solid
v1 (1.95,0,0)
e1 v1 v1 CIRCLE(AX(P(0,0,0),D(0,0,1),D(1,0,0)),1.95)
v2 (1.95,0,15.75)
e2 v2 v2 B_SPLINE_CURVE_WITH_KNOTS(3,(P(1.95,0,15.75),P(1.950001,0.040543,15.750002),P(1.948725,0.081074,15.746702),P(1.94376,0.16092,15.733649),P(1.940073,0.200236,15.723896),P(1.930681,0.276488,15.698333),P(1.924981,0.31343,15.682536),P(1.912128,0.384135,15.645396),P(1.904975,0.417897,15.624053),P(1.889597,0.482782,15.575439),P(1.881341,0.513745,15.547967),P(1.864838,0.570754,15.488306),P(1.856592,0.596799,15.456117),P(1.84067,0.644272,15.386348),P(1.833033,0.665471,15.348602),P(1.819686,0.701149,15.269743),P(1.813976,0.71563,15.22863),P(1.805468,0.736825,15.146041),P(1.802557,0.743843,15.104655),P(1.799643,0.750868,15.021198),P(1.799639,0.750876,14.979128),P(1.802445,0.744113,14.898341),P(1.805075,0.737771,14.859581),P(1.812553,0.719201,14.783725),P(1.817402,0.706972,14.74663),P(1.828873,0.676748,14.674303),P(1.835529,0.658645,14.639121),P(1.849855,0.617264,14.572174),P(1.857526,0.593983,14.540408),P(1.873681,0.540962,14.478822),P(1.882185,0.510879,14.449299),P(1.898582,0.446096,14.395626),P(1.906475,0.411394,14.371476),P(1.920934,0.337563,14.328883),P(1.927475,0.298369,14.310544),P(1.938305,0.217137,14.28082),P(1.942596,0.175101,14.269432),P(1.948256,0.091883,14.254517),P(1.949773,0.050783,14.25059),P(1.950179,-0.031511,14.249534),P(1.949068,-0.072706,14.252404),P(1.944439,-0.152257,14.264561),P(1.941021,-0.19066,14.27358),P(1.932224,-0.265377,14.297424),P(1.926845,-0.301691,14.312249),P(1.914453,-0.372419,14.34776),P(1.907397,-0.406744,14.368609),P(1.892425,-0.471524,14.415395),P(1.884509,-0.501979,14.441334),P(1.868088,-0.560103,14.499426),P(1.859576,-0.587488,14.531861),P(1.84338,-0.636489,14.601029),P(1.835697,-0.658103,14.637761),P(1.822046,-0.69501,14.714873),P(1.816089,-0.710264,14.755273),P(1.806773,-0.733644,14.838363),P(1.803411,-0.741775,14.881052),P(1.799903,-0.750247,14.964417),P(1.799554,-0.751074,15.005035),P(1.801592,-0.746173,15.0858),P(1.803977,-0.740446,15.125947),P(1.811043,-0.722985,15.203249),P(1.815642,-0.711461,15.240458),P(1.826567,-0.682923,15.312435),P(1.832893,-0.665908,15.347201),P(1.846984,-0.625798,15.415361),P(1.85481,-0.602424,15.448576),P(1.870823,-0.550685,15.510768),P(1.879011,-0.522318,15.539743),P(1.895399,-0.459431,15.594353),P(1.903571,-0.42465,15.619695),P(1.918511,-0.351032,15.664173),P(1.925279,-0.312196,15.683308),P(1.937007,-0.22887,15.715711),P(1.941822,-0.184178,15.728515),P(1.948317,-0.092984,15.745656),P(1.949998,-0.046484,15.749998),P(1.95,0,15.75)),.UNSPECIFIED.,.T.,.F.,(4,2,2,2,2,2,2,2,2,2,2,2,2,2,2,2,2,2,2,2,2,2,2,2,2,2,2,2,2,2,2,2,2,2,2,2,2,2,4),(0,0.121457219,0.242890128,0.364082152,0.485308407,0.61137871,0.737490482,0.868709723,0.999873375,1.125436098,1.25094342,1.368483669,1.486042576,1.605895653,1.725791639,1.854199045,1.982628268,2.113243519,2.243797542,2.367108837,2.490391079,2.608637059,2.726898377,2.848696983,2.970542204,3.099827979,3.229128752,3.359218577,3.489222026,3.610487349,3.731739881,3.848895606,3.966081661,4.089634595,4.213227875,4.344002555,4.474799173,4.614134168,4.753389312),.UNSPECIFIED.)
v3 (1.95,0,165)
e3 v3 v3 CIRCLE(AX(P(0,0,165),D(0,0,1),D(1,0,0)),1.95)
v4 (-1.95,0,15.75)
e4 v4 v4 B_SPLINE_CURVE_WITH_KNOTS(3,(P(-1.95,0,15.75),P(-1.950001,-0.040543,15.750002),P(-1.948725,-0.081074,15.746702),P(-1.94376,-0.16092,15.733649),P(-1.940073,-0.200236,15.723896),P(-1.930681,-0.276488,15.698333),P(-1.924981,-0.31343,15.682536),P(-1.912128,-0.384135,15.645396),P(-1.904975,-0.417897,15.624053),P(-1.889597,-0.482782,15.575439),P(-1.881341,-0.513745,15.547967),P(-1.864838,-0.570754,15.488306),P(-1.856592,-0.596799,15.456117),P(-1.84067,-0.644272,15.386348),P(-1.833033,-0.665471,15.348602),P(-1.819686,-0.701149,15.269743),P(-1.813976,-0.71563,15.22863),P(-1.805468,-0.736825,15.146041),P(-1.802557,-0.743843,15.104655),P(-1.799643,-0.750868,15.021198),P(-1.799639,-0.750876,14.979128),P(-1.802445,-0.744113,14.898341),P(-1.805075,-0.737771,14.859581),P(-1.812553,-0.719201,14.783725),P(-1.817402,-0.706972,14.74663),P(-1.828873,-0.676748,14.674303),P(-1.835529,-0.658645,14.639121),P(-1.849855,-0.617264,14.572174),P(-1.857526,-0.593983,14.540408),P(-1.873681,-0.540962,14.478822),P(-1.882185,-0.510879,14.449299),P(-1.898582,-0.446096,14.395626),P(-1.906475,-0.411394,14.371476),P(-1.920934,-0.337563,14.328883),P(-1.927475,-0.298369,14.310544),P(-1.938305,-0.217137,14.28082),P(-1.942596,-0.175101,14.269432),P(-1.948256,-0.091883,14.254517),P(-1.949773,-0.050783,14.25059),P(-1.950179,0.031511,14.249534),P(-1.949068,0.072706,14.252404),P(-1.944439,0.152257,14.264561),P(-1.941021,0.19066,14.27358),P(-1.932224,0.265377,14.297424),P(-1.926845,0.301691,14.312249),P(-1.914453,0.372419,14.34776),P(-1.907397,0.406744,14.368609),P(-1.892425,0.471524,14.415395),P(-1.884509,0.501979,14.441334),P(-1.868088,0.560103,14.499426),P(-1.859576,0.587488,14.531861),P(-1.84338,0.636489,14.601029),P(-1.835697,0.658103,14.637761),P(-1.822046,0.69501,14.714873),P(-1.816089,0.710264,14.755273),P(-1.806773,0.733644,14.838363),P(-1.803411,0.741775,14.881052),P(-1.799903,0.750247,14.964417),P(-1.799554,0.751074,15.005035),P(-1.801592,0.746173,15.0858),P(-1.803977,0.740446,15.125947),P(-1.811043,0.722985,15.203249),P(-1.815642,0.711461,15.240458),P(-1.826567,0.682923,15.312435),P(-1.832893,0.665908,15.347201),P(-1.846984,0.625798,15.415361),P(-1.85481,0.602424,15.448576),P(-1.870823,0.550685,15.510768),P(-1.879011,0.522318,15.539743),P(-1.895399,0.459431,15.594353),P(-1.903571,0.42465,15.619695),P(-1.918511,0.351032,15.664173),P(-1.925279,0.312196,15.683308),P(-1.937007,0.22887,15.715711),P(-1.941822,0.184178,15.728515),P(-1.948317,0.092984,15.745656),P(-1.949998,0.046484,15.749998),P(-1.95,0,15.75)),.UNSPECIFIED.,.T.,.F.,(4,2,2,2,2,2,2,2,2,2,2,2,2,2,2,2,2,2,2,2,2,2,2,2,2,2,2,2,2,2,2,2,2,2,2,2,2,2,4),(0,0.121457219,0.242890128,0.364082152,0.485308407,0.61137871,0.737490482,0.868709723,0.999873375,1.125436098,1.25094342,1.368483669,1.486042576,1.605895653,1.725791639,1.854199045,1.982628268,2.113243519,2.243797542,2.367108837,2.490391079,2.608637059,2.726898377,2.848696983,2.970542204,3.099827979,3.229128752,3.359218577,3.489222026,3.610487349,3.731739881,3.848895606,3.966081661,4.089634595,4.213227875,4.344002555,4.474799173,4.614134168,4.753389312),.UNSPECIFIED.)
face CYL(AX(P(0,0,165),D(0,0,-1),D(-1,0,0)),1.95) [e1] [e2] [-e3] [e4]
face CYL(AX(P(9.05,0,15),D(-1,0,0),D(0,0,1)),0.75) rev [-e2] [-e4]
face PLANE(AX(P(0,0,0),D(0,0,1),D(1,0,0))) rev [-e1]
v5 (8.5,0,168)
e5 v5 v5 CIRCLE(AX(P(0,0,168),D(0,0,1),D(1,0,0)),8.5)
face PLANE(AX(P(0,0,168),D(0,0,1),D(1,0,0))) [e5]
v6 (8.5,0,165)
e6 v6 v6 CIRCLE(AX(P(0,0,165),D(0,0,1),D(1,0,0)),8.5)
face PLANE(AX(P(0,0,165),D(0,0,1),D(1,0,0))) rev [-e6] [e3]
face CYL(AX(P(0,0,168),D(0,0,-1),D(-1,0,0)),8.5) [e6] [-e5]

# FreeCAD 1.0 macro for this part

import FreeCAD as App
import Part
import Sketcher

V = App.Vector
Q = App.Units.Quantity

doc = App.newDocument("Part")
params = doc.addObject("Spreadsheet::Sheet", "Params")
for row, (alias, value) in enumerate([
    ("sketch1_diameter", "3.9 mm"),
    ("pad1_length", "165 mm"),
    ("sketch2_diameter", "17 mm"),
    ("pad2_length", "3 mm"),
    ("sketch3_diameter", "1.5 mm"),
    ("pocket1_length", "11 mm"),
], start=1):
    params.set(f"A{row}", alias)
    params.set(f"B{row}", "=" + value)
    params.setAlias(f"B{row}", alias)

body = doc.addObject("PartDesign::Body", "Body")

# Sketch on XY plane
sketch1 = body.newObject("Sketcher::SketchObject", "Sketch")
sketch1.AttachmentSupport = (doc.getObject("XY_Plane"), [""])
sketch1.MapMode = "FlatFace"
sketch1.addGeometry(Part.Circle(V(0, 0, 0), V(0, 0, 1), 1.9), False)
sketch1.addConstraint(Sketcher.Constraint("Coincident", 0, 3, -1, 1))
sketch1.addConstraint(Sketcher.Constraint("Diameter", 0, Q("3.9 mm")))
sketch1.setExpression("Constraints[1]", "Params.sketch1_diameter")
pad1 = body.newObject("PartDesign::Pad", "Pad")
pad1.Profile = sketch1
pad1.setExpression("Length", "Params.pad1_length")

# Sketch on XY plane
sketch2 = body.newObject("Sketcher::SketchObject", "Sketch001")
sketch2.AttachmentSupport = (doc.getObject("XY_Plane"), [""])
sketch2.MapMode = "FlatFace"
sketch2.AttachmentOffset = App.Placement(V(0, 0, 165), App.Rotation())
sketch2.addGeometry(Part.Circle(V(0, 0, 0), V(0, 0, 1), 8), False)
sketch2.addConstraint(Sketcher.Constraint("Coincident", 0, 3, -1, 1))
sketch2.addConstraint(Sketcher.Constraint("Diameter", 0, Q("17 mm")))
sketch2.setExpression("Constraints[1]", "Params.sketch2_diameter")
pad2 = body.newObject("PartDesign::Pad", "Pad001")
pad2.Profile = sketch2
pad2.setExpression("Length", "Params.pad2_length")

# Sketch on YZ plane
sketch3 = body.newObject("Sketcher::SketchObject", "Sketch002")
sketch3.AttachmentSupport = (doc.getObject("YZ_Plane"), [""])
sketch3.MapMode = "FlatFace"
sketch3.AttachmentOffset = App.Placement(V(0, 0, -1.95), App.Rotation())
sketch3.addGeometry(Part.Circle(V(0, 15, 0), V(0, 0, 1), 0.8), False)
sketch3.addConstraint(Sketcher.Constraint("PointOnObject", 0, 3, -2))
sketch3.addConstraint(Sketcher.Constraint("Diameter", 0, Q("1.5 mm")))
sketch3.addConstraint(Sketcher.Constraint("DistanceY", -1, 1, 0, 3, Q("15 mm")))
sketch3.setExpression("Constraints[1]", "Params.sketch3_diameter")
pocket1 = body.newObject("PartDesign::Pocket", "Pocket")
pocket1.Profile = sketch3
pocket1.setExpression("Length", "Params.pocket1_length")
pocket1.Reversed = True

doc.recompute()
